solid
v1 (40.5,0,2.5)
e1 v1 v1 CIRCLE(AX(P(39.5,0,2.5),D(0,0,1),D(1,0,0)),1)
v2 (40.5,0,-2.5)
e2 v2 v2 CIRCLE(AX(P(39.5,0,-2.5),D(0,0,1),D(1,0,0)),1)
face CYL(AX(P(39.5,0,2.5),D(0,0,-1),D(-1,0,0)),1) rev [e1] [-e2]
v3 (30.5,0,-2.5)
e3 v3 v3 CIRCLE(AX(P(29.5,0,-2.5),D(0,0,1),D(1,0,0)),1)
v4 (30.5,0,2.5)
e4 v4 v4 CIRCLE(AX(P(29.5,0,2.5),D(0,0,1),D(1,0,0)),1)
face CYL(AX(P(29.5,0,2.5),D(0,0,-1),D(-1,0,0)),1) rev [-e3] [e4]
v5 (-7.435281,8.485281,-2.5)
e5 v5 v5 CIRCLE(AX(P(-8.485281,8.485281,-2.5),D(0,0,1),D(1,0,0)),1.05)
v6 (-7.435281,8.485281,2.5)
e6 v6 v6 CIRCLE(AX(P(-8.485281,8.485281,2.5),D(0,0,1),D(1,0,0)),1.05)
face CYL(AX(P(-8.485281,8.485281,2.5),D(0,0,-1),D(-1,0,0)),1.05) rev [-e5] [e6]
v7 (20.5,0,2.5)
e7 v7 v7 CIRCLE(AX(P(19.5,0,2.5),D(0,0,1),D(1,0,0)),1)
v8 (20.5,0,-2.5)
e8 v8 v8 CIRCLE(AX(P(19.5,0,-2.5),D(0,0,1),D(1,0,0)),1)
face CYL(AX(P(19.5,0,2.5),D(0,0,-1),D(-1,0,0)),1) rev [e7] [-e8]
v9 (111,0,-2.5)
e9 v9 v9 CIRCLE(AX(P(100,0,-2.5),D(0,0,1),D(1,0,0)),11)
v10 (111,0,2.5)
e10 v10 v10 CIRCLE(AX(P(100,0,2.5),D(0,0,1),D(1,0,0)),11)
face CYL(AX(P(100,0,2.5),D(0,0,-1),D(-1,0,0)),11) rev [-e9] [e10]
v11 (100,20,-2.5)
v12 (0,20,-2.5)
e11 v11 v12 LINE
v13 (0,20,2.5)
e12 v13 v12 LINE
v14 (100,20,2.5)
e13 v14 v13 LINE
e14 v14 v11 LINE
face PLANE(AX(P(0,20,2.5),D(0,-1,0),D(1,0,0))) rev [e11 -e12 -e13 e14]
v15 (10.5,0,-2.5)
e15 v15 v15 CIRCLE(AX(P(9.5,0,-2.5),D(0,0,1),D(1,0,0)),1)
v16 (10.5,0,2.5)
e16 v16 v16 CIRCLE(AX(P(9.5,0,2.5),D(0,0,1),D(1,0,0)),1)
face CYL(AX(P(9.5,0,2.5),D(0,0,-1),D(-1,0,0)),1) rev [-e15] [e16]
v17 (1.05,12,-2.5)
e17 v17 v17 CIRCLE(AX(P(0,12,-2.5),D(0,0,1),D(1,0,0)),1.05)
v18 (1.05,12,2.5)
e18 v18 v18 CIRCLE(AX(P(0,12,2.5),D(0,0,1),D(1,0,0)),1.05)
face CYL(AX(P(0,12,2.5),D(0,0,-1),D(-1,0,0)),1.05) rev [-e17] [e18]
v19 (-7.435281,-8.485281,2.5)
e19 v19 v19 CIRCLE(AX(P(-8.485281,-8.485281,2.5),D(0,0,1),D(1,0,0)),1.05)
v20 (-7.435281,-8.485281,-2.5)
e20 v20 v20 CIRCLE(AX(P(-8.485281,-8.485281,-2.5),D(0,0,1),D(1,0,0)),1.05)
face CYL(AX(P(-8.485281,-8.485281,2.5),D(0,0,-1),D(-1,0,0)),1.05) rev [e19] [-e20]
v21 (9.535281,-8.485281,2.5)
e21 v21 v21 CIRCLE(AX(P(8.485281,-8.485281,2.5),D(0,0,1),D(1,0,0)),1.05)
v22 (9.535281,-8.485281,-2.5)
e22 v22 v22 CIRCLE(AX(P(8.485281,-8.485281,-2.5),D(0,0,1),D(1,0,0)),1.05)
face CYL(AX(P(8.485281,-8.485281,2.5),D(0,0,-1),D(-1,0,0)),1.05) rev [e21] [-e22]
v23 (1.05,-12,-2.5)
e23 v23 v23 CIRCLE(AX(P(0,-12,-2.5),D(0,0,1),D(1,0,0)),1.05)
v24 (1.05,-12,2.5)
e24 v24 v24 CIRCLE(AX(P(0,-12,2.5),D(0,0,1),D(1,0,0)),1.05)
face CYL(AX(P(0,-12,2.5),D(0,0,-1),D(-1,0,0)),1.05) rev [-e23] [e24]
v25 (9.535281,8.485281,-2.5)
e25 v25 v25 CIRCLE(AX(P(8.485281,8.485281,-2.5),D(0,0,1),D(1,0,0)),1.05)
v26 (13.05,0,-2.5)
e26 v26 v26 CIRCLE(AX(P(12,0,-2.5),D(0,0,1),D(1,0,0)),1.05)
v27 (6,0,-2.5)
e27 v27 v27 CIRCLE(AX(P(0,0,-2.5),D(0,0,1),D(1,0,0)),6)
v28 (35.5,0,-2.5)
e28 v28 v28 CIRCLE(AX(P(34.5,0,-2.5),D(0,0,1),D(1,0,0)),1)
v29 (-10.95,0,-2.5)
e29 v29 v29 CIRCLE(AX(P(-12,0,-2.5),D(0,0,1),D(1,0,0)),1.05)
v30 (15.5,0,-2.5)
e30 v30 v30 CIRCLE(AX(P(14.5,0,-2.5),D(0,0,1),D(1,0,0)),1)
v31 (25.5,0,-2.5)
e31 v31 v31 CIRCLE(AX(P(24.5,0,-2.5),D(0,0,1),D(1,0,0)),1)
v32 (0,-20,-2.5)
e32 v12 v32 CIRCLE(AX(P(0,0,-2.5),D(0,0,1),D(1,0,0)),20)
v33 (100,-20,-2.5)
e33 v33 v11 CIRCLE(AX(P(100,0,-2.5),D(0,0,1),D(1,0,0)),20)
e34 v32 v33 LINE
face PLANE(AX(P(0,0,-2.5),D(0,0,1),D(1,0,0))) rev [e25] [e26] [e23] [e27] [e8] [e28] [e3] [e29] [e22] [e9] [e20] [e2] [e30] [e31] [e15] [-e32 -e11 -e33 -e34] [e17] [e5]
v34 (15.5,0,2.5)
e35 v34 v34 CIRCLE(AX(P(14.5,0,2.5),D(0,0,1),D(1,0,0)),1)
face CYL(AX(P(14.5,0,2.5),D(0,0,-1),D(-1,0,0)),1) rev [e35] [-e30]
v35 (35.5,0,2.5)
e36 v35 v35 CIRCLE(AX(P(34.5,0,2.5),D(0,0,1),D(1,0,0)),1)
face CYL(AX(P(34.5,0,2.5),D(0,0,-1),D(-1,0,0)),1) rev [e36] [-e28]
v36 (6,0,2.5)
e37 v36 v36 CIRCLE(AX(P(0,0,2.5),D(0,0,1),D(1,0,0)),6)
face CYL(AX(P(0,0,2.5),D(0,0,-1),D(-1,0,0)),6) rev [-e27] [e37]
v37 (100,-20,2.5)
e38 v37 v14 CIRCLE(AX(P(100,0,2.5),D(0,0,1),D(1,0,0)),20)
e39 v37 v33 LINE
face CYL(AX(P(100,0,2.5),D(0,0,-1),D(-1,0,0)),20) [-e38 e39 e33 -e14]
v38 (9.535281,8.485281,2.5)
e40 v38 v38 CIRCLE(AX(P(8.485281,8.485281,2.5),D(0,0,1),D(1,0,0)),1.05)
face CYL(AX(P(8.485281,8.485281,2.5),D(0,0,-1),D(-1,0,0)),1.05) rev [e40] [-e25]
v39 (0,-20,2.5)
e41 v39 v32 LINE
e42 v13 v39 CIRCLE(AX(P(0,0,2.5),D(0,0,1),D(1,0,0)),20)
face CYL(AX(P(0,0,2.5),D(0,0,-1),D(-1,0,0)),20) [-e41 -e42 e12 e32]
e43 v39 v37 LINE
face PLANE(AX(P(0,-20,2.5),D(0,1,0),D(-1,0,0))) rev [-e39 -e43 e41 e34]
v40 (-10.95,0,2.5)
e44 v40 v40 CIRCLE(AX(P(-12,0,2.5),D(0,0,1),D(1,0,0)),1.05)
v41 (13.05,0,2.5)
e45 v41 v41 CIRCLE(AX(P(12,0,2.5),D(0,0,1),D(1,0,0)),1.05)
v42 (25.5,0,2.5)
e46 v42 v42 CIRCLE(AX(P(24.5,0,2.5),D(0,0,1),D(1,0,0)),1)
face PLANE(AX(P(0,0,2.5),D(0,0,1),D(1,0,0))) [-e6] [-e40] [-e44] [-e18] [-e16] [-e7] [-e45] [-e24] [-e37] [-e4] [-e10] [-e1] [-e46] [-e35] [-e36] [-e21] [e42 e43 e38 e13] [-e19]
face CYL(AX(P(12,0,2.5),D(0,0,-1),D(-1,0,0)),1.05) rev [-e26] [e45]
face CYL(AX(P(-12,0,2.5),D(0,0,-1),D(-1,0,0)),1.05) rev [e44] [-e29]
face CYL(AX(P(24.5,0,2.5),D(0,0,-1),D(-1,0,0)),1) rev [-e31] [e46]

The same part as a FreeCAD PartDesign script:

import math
import FreeCAD as App
import Part
import Sketcher

V = App.Vector

doc = App.newDocument("Part")
body = doc.addObject("PartDesign::Body", "Body")

# Sketch on XY plane
sketch1 = doc.addObject("Sketcher::SketchObject", "Sketch")
body.addObject(sketch1)
sketch1.AttachmentSupport = (doc.XY_Plane, [""])
sketch1.MapMode = "FlatFace"
sketch1.addGeometry(Part.LineSegment(V(100, 20, 0), V(0, 20, 0)), False)
sketch1.addGeometry(Part.ArcOfCircle(Part.Circle(V(0, 0, 0), V(0, 0, 1), 20), math.radians(90), math.radians(270)), False)
sketch1.addGeometry(Part.LineSegment(V(0, -20, 0), V(100, -20, 0)), False)
sketch1.addGeometry(Part.ArcOfCircle(Part.Circle(V(100, 0, 0), V(0, 0, 1), 20), math.radians(-90), math.radians(90)), False)
sketch1.addGeometry(Part.Circle(V(0, -12, 0), V(0, 0, 1), 1.1), False)
sketch1.addGeometry(Part.Circle(V(8.5, -8.5, 0), V(0, 0, 1), 1.1), False)
sketch1.addGeometry(Part.Circle(V(-8.5, -8.5, 0), V(0, 0, 1), 1.1), False)
sketch1.addGeometry(Part.Circle(V(100, 0, 0), V(0, 0, 1), 11), False)
sketch1.addGeometry(Part.Circle(V(39.5, 0, 0), V(0, 0, 1), 1), False)
sketch1.addGeometry(Part.Circle(V(34.5, 0, 0), V(0, 0, 1), 1), False)
sketch1.addGeometry(Part.Circle(V(29.5, 0, 0), V(0, 0, 1), 1), False)
sketch1.addGeometry(Part.Circle(V(24.5, 0, 0), V(0, 0, 1), 1), False)
sketch1.addGeometry(Part.Circle(V(19.5, 0, 0), V(0, 0, 1), 1), False)
sketch1.addGeometry(Part.Circle(V(14.5, 0, 0), V(0, 0, 1), 1), False)
sketch1.addGeometry(Part.Circle(V(12, 0, 0), V(0, 0, 1), 1.1), False)
sketch1.addGeometry(Part.Circle(V(9.5, 0, 0), V(0, 0, 1), 1), False)
sketch1.addGeometry(Part.Circle(V(0, 0, 0), V(0, 0, 1), 6), False)
sketch1.addGeometry(Part.Circle(V(-12, 0, 0), V(0, 0, 1), 1.1), False)
sketch1.addGeometry(Part.Circle(V(8.5, 8.5, 0), V(0, 0, 1), 1.1), False)
sketch1.addGeometry(Part.Circle(V(-8.5, 8.5, 0), V(0, 0, 1), 1.1), False)
sketch1.addGeometry(Part.Circle(V(0, 12, 0), V(0, 0, 1), 1.1), False)
sketch1.addConstraint(Sketcher.Constraint("Tangent", 0, 2, 1, 1))
sketch1.addConstraint(Sketcher.Constraint("Tangent", 1, 2, 2, 1))
sketch1.addConstraint(Sketcher.Constraint("Tangent", 2, 2, 3, 1))
sketch1.addConstraint(Sketcher.Constraint("Tangent", 3, 2, 0, 1))
sketch1.addConstraint(Sketcher.Constraint("Horizontal", 0))
sketch1.addConstraint(Sketcher.Constraint("Horizontal", 2))
sketch1.addConstraint(Sketcher.Constraint("Coincident", 1, 3, -1, 1))
sketch1.addConstraint(Sketcher.Constraint("Coincident", 16, 3, -1, 1))
sketch1.addConstraint(Sketcher.Constraint("Coincident", 7, 3, 3, 3))
sketch1.addConstraint(Sketcher.Constraint("Equal", 4, 5))
sketch1.addConstraint(Sketcher.Constraint("Equal", 5, 6))
sketch1.addConstraint(Sketcher.Constraint("Equal", 8, 9))
sketch1.addConstraint(Sketcher.Constraint("Equal", 9, 10))
sketch1.addConstraint(Sketcher.Constraint("Equal", 10, 11))
sketch1.addConstraint(Sketcher.Constraint("Equal", 11, 12))
sketch1.addConstraint(Sketcher.Constraint("Equal", 12, 13))
sketch1.addConstraint(Sketcher.Constraint("Equal", 6, 14))
sketch1.addConstraint(Sketcher.Constraint("Equal", 13, 15))
sketch1.addConstraint(Sketcher.Constraint("Equal", 14, 17))
sketch1.addConstraint(Sketcher.Constraint("Equal", 17, 18))
sketch1.addConstraint(Sketcher.Constraint("Equal", 18, 19))
sketch1.addConstraint(Sketcher.Constraint("Equal", 19, 20))
sketch1.addConstraint(Sketcher.Constraint("Symmetric", 14, 3, 17, 3, -1, 1))
sketch1.addConstraint(Sketcher.Constraint("Symmetric", 6, 3, 18, 3, -1, 1))
sketch1.addConstraint(Sketcher.Constraint("Symmetric", 5, 3, 19, 3, -1, 1))
sketch1.addConstraint(Sketcher.Constraint("Symmetric", 4, 3, 20, 3, -1, 1))
sketch1.addConstraint(Sketcher.Constraint("Symmetric", 5, 3, 6, 3, -2))
sketch1.addConstraint(Sketcher.Constraint("PointOnObject", 4, 3, -2))
sketch1.addConstraint(Sketcher.Constraint("PointOnObject", 8, 3, -1))
sketch1.addConstraint(Sketcher.Constraint("PointOnObject", 9, 3, -1))
sketch1.addConstraint(Sketcher.Constraint("PointOnObject", 10, 3, -1))
sketch1.addConstraint(Sketcher.Constraint("PointOnObject", 11, 3, -1))
sketch1.addConstraint(Sketcher.Constraint("PointOnObject", 12, 3, -1))
sketch1.addConstraint(Sketcher.Constraint("PointOnObject", 13, 3, -1))
sketch1.addConstraint(Sketcher.Constraint("PointOnObject", 14, 3, -1))
sketch1.addConstraint(Sketcher.Constraint("PointOnObject", 15, 3, -1))
sketch1.addConstraint(Sketcher.Constraint("Diameter", 7, 22.0))
sketch1.addConstraint(Sketcher.Constraint("Diameter", 8, 2.0))
sketch1.addConstraint(Sketcher.Constraint("Diameter", 16, 12.0))
sketch1.addConstraint(Sketcher.Constraint("Radius", 1, 20.0))
sketch1.addConstraint(Sketcher.Constraint("Diameter", 4, 2.1))
sketch1.addConstraint(Sketcher.Constraint("DistanceX", 0, 2, 0, 1, 100.0))
sketch1.addConstraint(Sketcher.Constraint("DistanceY", 4, 3, -1, 1, 12.0))
sketch1.addConstraint(Sketcher.Constraint("DistanceX", -1, 1, 14, 3, 12.0))
sketch1.addConstraint(Sketcher.Constraint("DistanceX", 9, 3, 8, 3, 5.0))
sketch1.addConstraint(Sketcher.Constraint("DistanceX", 10, 3, 9, 3, 5.0))
sketch1.addConstraint(Sketcher.Constraint("DistanceX", 11, 3, 10, 3, 5.0))
sketch1.addConstraint(Sketcher.Constraint("DistanceX", 12, 3, 11, 3, 5.0))
sketch1.addConstraint(Sketcher.Constraint("DistanceX", 13, 3, 12, 3, 5.0))
sketch1.addConstraint(Sketcher.Constraint("DistanceX", 15, 3, 13, 3, 5.0))
sketch1.addConstraint(Sketcher.Constraint("DistanceX", -1, 1, 8, 3, 39.5))
sketch1.addConstraint(Sketcher.Constraint("DistanceX", -1, 1, 5, 3, 8.485281))
sketch1.addConstraint(Sketcher.Constraint("DistanceY", 5, 3, -1, 1, 8.485281))
pad1 = doc.addObject("PartDesign::Pad", "Pad")
body.addObject(pad1)
pad1.Profile = sketch1
pad1.Length = 5
pad1.Midplane = True

doc.recompute()
